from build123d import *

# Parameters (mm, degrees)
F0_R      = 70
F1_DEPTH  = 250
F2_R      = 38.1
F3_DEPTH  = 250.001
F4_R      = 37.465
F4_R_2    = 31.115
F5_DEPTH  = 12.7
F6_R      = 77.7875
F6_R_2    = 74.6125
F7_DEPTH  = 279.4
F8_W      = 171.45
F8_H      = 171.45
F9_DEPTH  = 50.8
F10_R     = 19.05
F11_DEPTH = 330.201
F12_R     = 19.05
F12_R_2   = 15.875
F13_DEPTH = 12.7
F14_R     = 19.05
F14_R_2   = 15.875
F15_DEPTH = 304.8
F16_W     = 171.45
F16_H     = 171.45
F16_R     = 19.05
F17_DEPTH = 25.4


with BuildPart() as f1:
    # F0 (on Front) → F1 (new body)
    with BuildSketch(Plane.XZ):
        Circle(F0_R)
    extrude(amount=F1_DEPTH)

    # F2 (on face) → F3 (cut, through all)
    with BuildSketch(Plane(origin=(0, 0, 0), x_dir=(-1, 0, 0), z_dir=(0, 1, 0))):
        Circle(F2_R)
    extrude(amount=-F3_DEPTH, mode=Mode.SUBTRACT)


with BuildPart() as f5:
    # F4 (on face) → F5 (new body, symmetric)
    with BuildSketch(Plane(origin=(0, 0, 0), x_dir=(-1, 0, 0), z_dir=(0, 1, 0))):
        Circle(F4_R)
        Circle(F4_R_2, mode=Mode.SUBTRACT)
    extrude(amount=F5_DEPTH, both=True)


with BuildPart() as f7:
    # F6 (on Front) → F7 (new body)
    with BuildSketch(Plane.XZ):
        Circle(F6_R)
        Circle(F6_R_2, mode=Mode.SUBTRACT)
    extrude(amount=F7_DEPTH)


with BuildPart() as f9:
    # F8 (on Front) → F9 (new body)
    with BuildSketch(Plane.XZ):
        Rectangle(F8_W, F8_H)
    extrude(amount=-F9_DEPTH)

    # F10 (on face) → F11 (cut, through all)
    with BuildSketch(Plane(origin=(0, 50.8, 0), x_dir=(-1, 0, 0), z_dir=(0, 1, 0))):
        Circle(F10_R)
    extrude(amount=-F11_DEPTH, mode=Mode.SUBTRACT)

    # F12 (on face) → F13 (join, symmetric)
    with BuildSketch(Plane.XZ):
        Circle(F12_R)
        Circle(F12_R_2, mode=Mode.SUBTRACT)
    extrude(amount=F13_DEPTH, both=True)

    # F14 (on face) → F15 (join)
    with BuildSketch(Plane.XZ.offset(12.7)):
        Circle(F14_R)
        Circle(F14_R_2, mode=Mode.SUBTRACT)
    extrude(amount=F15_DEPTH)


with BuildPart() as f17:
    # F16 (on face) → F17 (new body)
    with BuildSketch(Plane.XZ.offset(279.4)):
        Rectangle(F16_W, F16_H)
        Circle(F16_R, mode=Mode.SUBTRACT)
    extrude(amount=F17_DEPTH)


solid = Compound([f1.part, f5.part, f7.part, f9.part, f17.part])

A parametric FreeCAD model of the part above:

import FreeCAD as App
import Part
import Sketcher
Q = App.Units.Quantity


def add_polygon(sketch, points):
    """Adds a closed chain of lines whose ends are joined by coincident constraints."""
    first, n = sketch.GeometryCount, len(points)
    for a, b in zip(points, points[1:] + points[:1]):
        sketch.addGeometry(Part.LineSegment(App.Vector(*a, 0), App.Vector(*b, 0)), False)
    for i in range(n):
        sketch.addConstraint(Sketcher.Constraint("Coincident", first + i, 2, first + (i + 1) % n, 1))

doc = App.newDocument("Part")
body = doc.addObject("PartDesign::Body", "Body")

sketch1 = body.newObject("Sketcher::SketchObject", "Sketch")
sketch1.AttachmentSupport = (doc.getObject("XZ_Plane"), [""])
sketch1.MapMode = "FlatFace"
sketch1.addGeometry(Part.Circle(App.Vector(0, 0, 0), App.Vector(0, 0, 1), 70), False)
sketch1.addConstraint(Sketcher.Constraint("Coincident", 0, 3, -1, 1))
sketch1.addConstraint(Sketcher.Constraint("Diameter", 0, 140.0))
pad1 = body.newObject("PartDesign::Pad", "Pad")
pad1.Profile = sketch1
pad1.Length = 250

sketch2 = body.newObject("Sketcher::SketchObject", "Sketch001")
sketch2.AttachmentSupport = (doc.getObject("XZ_Plane"), [""])
sketch2.MapMode = "FlatFace"
sketch2.addGeometry(Part.Circle(App.Vector(0, 0, 0), App.Vector(0, 0, 1), 38), False)
sketch2.addConstraint(Sketcher.Constraint("Coincident", 0, 3, -1, 1))
sketch2.addConstraint(Sketcher.Constraint("Diameter", 0, Q("3 in")))
pocket1 = body.newObject("PartDesign::Pocket", "Pocket")
pocket1.Profile = sketch2
pocket1.Type = "ThroughAll"
pocket1.Reversed = True
body2 = doc.addObject("PartDesign::Body", "Body001")

sketch3 = body2.newObject("Sketcher::SketchObject", "Sketch002")
sketch3.AttachmentSupport = (doc.getObject("XZ_Plane001"), [""])
sketch3.MapMode = "FlatFace"
sketch3.addGeometry(Part.Circle(App.Vector(0, 0, 0), App.Vector(0, 0, 1), 37), False)
sketch3.addGeometry(Part.Circle(App.Vector(0, 0, 0), App.Vector(0, 0, 1), 31), False)
sketch3.addConstraint(Sketcher.Constraint("Coincident", 0, 3, -1, 1))
sketch3.addConstraint(Sketcher.Constraint("Coincident", 1, 3, -1, 1))
sketch3.addConstraint(Sketcher.Constraint("Diameter", 0, Q("2.95 in")))
sketch3.addConstraint(Sketcher.Constraint("Diameter", 1, Q("2.45 in")))
pad2 = body2.newObject("PartDesign::Pad", "Pad001")
pad2.Profile = sketch3
pad2.Length = Q("1 in")
pad2.Midplane = True
body3 = doc.addObject("PartDesign::Body", "Body002")

sketch4 = body3.newObject("Sketcher::SketchObject", "Sketch003")
sketch4.AttachmentSupport = (doc.getObject("XZ_Plane002"), [""])
sketch4.MapMode = "FlatFace"
sketch4.addGeometry(Part.Circle(App.Vector(0, 0, 0), App.Vector(0, 0, 1), 78), False)
sketch4.addGeometry(Part.Circle(App.Vector(0, 0, 0), App.Vector(0, 0, 1), 75), False)
sketch4.addConstraint(Sketcher.Constraint("Coincident", 0, 3, -1, 1))
sketch4.addConstraint(Sketcher.Constraint("Coincident", 1, 3, -1, 1))
sketch4.addConstraint(Sketcher.Constraint("Diameter", 0, Q("6.125 in")))
sketch4.addConstraint(Sketcher.Constraint("Diameter", 1, Q("5.875 in")))
pad3 = body3.newObject("PartDesign::Pad", "Pad002")
pad3.Profile = sketch4
pad3.Length = Q("11 in")
body4 = doc.addObject("PartDesign::Body", "Body003")

sketch5 = body4.newObject("Sketcher::SketchObject", "Sketch004")
sketch5.AttachmentSupport = (doc.getObject("XZ_Plane003"), [""])
sketch5.MapMode = "FlatFace"
add_polygon(sketch5, [(-86, 86), (-86, -86), (86, -86), (86, 86)])
sketch5.addConstraint(Sketcher.Constraint("Vertical", 0))
sketch5.addConstraint(Sketcher.Constraint("Horizontal", 1))
sketch5.addConstraint(Sketcher.Constraint("Vertical", 2))
sketch5.addConstraint(Sketcher.Constraint("Horizontal", 3))
sketch5.addConstraint(Sketcher.Constraint("Symmetric", 0, 2, 2, 2, -1, 1))
sketch5.addConstraint(Sketcher.Constraint("Equal", 3, 0))
sketch5.addConstraint(Sketcher.Constraint("DistanceX", 1, 1, 1, 2, Q("6.75 in")))
pad4 = body4.newObject("PartDesign::Pad", "Pad003")
pad4.Profile = sketch5
pad4.Length = Q("2 in")
pad4.Reversed = True

sketch6 = body4.newObject("Sketcher::SketchObject", "Sketch005")
sketch6.AttachmentSupport = (doc.getObject("XZ_Plane003"), [""])
sketch6.MapMode = "FlatFace"
sketch6.AttachmentOffset = App.Placement(App.Vector(0, 0, -2 * 25.4), App.Rotation())
sketch6.addGeometry(Part.Circle(App.Vector(0, 0, 0), App.Vector(0, 0, 1), 19), False)
sketch6.addConstraint(Sketcher.Constraint("Coincident", 0, 3, -1, 1))
sketch6.addConstraint(Sketcher.Constraint("Diameter", 0, Q("1.5 in")))
pocket2 = body4.newObject("PartDesign::Pocket", "Pocket001")
pocket2.Profile = sketch6
pocket2.Type = "ThroughAll"
pocket2.Reversed = True

sketch7 = body4.newObject("Sketcher::SketchObject", "Sketch006")
sketch7.AttachmentSupport = (doc.getObject("XZ_Plane003"), [""])
sketch7.MapMode = "FlatFace"
sketch7.addGeometry(Part.Circle(App.Vector(0, 0, 0), App.Vector(0, 0, 1), 19), False)
sketch7.addGeometry(Part.Circle(App.Vector(0, 0, 0), App.Vector(0, 0, 1), 16), False)
sketch7.addConstraint(Sketcher.Constraint("Coincident", 0, 3, -1, 1))
sketch7.addConstraint(Sketcher.Constraint("Coincident", 1, 3, -1, 1))
sketch7.addConstraint(Sketcher.Constraint("Diameter", 0, Q("1.5 in")))
sketch7.addConstraint(Sketcher.Constraint("Diameter", 1, Q("1.25 in")))
pad5 = body4.newObject("PartDesign::Pad", "Pad004")
pad5.Profile = sketch7
pad5.Length = Q("1 in")
pad5.Midplane = True

sketch8 = body4.newObject("Sketcher::SketchObject", "Sketch007")
sketch8.AttachmentSupport = (doc.getObject("XZ_Plane003"), [""])
sketch8.MapMode = "FlatFace"
sketch8.AttachmentOffset = App.Placement(App.Vector(0, 0, 0.5 * 25.4), App.Rotation())
sketch8.addGeometry(Part.Circle(App.Vector(0, 0, 0), App.Vector(0, 0, 1), 19), False)
sketch8.addGeometry(Part.Circle(App.Vector(0, 0, 0), App.Vector(0, 0, 1), 16), False)
sketch8.addConstraint(Sketcher.Constraint("Coincident", 0, 3, -1, 1))
sketch8.addConstraint(Sketcher.Constraint("Coincident", 1, 3, -1, 1))
sketch8.addConstraint(Sketcher.Constraint("Diameter", 0, Q("1.5 in")))
sketch8.addConstraint(Sketcher.Constraint("Diameter", 1, Q("1.25 in")))
pad6 = body4.newObject("PartDesign::Pad", "Pad005")
pad6.Profile = sketch8
pad6.Length = Q("12 in")
body5 = doc.addObject("PartDesign::Body", "Body004")

sketch9 = body5.newObject("Sketcher::SketchObject", "Sketch008")
sketch9.AttachmentSupport = (doc.getObject("XZ_Plane004"), [""])
sketch9.MapMode = "FlatFace"
sketch9.AttachmentOffset = App.Placement(App.Vector(0, 0, 11 * 25.4), App.Rotation())
add_polygon(sketch9, [(-86, 86), (-86, -86), (86, -86), (86, 86)])
sketch9.addGeometry(Part.Circle(App.Vector(0, 0, 0), App.Vector(0, 0, 1), 19), False)
sketch9.addConstraint(Sketcher.Constraint("Vertical", 0))
sketch9.addConstraint(Sketcher.Constraint("Horizontal", 1))
sketch9.addConstraint(Sketcher.Constraint("Vertical", 2))
sketch9.addConstraint(Sketcher.Constraint("Horizontal", 3))
sketch9.addConstraint(Sketcher.Constraint("Coincident", 4, 3, -1, 1))
sketch9.addConstraint(Sketcher.Constraint("Symmetric", 0, 2, 2, 2, -1, 1))
sketch9.addConstraint(Sketcher.Constraint("Equal", 3, 0))
sketch9.addConstraint(Sketcher.Constraint("Diameter", 4, Q("1.5 in")))
sketch9.addConstraint(Sketcher.Constraint("DistanceX", 1, 1, 1, 2, Q("6.75 in")))
pad7 = body5.newObject("PartDesign::Pad", "Pad006")
pad7.Profile = sketch9
pad7.Length = Q("1 in")

doc.recompute()
